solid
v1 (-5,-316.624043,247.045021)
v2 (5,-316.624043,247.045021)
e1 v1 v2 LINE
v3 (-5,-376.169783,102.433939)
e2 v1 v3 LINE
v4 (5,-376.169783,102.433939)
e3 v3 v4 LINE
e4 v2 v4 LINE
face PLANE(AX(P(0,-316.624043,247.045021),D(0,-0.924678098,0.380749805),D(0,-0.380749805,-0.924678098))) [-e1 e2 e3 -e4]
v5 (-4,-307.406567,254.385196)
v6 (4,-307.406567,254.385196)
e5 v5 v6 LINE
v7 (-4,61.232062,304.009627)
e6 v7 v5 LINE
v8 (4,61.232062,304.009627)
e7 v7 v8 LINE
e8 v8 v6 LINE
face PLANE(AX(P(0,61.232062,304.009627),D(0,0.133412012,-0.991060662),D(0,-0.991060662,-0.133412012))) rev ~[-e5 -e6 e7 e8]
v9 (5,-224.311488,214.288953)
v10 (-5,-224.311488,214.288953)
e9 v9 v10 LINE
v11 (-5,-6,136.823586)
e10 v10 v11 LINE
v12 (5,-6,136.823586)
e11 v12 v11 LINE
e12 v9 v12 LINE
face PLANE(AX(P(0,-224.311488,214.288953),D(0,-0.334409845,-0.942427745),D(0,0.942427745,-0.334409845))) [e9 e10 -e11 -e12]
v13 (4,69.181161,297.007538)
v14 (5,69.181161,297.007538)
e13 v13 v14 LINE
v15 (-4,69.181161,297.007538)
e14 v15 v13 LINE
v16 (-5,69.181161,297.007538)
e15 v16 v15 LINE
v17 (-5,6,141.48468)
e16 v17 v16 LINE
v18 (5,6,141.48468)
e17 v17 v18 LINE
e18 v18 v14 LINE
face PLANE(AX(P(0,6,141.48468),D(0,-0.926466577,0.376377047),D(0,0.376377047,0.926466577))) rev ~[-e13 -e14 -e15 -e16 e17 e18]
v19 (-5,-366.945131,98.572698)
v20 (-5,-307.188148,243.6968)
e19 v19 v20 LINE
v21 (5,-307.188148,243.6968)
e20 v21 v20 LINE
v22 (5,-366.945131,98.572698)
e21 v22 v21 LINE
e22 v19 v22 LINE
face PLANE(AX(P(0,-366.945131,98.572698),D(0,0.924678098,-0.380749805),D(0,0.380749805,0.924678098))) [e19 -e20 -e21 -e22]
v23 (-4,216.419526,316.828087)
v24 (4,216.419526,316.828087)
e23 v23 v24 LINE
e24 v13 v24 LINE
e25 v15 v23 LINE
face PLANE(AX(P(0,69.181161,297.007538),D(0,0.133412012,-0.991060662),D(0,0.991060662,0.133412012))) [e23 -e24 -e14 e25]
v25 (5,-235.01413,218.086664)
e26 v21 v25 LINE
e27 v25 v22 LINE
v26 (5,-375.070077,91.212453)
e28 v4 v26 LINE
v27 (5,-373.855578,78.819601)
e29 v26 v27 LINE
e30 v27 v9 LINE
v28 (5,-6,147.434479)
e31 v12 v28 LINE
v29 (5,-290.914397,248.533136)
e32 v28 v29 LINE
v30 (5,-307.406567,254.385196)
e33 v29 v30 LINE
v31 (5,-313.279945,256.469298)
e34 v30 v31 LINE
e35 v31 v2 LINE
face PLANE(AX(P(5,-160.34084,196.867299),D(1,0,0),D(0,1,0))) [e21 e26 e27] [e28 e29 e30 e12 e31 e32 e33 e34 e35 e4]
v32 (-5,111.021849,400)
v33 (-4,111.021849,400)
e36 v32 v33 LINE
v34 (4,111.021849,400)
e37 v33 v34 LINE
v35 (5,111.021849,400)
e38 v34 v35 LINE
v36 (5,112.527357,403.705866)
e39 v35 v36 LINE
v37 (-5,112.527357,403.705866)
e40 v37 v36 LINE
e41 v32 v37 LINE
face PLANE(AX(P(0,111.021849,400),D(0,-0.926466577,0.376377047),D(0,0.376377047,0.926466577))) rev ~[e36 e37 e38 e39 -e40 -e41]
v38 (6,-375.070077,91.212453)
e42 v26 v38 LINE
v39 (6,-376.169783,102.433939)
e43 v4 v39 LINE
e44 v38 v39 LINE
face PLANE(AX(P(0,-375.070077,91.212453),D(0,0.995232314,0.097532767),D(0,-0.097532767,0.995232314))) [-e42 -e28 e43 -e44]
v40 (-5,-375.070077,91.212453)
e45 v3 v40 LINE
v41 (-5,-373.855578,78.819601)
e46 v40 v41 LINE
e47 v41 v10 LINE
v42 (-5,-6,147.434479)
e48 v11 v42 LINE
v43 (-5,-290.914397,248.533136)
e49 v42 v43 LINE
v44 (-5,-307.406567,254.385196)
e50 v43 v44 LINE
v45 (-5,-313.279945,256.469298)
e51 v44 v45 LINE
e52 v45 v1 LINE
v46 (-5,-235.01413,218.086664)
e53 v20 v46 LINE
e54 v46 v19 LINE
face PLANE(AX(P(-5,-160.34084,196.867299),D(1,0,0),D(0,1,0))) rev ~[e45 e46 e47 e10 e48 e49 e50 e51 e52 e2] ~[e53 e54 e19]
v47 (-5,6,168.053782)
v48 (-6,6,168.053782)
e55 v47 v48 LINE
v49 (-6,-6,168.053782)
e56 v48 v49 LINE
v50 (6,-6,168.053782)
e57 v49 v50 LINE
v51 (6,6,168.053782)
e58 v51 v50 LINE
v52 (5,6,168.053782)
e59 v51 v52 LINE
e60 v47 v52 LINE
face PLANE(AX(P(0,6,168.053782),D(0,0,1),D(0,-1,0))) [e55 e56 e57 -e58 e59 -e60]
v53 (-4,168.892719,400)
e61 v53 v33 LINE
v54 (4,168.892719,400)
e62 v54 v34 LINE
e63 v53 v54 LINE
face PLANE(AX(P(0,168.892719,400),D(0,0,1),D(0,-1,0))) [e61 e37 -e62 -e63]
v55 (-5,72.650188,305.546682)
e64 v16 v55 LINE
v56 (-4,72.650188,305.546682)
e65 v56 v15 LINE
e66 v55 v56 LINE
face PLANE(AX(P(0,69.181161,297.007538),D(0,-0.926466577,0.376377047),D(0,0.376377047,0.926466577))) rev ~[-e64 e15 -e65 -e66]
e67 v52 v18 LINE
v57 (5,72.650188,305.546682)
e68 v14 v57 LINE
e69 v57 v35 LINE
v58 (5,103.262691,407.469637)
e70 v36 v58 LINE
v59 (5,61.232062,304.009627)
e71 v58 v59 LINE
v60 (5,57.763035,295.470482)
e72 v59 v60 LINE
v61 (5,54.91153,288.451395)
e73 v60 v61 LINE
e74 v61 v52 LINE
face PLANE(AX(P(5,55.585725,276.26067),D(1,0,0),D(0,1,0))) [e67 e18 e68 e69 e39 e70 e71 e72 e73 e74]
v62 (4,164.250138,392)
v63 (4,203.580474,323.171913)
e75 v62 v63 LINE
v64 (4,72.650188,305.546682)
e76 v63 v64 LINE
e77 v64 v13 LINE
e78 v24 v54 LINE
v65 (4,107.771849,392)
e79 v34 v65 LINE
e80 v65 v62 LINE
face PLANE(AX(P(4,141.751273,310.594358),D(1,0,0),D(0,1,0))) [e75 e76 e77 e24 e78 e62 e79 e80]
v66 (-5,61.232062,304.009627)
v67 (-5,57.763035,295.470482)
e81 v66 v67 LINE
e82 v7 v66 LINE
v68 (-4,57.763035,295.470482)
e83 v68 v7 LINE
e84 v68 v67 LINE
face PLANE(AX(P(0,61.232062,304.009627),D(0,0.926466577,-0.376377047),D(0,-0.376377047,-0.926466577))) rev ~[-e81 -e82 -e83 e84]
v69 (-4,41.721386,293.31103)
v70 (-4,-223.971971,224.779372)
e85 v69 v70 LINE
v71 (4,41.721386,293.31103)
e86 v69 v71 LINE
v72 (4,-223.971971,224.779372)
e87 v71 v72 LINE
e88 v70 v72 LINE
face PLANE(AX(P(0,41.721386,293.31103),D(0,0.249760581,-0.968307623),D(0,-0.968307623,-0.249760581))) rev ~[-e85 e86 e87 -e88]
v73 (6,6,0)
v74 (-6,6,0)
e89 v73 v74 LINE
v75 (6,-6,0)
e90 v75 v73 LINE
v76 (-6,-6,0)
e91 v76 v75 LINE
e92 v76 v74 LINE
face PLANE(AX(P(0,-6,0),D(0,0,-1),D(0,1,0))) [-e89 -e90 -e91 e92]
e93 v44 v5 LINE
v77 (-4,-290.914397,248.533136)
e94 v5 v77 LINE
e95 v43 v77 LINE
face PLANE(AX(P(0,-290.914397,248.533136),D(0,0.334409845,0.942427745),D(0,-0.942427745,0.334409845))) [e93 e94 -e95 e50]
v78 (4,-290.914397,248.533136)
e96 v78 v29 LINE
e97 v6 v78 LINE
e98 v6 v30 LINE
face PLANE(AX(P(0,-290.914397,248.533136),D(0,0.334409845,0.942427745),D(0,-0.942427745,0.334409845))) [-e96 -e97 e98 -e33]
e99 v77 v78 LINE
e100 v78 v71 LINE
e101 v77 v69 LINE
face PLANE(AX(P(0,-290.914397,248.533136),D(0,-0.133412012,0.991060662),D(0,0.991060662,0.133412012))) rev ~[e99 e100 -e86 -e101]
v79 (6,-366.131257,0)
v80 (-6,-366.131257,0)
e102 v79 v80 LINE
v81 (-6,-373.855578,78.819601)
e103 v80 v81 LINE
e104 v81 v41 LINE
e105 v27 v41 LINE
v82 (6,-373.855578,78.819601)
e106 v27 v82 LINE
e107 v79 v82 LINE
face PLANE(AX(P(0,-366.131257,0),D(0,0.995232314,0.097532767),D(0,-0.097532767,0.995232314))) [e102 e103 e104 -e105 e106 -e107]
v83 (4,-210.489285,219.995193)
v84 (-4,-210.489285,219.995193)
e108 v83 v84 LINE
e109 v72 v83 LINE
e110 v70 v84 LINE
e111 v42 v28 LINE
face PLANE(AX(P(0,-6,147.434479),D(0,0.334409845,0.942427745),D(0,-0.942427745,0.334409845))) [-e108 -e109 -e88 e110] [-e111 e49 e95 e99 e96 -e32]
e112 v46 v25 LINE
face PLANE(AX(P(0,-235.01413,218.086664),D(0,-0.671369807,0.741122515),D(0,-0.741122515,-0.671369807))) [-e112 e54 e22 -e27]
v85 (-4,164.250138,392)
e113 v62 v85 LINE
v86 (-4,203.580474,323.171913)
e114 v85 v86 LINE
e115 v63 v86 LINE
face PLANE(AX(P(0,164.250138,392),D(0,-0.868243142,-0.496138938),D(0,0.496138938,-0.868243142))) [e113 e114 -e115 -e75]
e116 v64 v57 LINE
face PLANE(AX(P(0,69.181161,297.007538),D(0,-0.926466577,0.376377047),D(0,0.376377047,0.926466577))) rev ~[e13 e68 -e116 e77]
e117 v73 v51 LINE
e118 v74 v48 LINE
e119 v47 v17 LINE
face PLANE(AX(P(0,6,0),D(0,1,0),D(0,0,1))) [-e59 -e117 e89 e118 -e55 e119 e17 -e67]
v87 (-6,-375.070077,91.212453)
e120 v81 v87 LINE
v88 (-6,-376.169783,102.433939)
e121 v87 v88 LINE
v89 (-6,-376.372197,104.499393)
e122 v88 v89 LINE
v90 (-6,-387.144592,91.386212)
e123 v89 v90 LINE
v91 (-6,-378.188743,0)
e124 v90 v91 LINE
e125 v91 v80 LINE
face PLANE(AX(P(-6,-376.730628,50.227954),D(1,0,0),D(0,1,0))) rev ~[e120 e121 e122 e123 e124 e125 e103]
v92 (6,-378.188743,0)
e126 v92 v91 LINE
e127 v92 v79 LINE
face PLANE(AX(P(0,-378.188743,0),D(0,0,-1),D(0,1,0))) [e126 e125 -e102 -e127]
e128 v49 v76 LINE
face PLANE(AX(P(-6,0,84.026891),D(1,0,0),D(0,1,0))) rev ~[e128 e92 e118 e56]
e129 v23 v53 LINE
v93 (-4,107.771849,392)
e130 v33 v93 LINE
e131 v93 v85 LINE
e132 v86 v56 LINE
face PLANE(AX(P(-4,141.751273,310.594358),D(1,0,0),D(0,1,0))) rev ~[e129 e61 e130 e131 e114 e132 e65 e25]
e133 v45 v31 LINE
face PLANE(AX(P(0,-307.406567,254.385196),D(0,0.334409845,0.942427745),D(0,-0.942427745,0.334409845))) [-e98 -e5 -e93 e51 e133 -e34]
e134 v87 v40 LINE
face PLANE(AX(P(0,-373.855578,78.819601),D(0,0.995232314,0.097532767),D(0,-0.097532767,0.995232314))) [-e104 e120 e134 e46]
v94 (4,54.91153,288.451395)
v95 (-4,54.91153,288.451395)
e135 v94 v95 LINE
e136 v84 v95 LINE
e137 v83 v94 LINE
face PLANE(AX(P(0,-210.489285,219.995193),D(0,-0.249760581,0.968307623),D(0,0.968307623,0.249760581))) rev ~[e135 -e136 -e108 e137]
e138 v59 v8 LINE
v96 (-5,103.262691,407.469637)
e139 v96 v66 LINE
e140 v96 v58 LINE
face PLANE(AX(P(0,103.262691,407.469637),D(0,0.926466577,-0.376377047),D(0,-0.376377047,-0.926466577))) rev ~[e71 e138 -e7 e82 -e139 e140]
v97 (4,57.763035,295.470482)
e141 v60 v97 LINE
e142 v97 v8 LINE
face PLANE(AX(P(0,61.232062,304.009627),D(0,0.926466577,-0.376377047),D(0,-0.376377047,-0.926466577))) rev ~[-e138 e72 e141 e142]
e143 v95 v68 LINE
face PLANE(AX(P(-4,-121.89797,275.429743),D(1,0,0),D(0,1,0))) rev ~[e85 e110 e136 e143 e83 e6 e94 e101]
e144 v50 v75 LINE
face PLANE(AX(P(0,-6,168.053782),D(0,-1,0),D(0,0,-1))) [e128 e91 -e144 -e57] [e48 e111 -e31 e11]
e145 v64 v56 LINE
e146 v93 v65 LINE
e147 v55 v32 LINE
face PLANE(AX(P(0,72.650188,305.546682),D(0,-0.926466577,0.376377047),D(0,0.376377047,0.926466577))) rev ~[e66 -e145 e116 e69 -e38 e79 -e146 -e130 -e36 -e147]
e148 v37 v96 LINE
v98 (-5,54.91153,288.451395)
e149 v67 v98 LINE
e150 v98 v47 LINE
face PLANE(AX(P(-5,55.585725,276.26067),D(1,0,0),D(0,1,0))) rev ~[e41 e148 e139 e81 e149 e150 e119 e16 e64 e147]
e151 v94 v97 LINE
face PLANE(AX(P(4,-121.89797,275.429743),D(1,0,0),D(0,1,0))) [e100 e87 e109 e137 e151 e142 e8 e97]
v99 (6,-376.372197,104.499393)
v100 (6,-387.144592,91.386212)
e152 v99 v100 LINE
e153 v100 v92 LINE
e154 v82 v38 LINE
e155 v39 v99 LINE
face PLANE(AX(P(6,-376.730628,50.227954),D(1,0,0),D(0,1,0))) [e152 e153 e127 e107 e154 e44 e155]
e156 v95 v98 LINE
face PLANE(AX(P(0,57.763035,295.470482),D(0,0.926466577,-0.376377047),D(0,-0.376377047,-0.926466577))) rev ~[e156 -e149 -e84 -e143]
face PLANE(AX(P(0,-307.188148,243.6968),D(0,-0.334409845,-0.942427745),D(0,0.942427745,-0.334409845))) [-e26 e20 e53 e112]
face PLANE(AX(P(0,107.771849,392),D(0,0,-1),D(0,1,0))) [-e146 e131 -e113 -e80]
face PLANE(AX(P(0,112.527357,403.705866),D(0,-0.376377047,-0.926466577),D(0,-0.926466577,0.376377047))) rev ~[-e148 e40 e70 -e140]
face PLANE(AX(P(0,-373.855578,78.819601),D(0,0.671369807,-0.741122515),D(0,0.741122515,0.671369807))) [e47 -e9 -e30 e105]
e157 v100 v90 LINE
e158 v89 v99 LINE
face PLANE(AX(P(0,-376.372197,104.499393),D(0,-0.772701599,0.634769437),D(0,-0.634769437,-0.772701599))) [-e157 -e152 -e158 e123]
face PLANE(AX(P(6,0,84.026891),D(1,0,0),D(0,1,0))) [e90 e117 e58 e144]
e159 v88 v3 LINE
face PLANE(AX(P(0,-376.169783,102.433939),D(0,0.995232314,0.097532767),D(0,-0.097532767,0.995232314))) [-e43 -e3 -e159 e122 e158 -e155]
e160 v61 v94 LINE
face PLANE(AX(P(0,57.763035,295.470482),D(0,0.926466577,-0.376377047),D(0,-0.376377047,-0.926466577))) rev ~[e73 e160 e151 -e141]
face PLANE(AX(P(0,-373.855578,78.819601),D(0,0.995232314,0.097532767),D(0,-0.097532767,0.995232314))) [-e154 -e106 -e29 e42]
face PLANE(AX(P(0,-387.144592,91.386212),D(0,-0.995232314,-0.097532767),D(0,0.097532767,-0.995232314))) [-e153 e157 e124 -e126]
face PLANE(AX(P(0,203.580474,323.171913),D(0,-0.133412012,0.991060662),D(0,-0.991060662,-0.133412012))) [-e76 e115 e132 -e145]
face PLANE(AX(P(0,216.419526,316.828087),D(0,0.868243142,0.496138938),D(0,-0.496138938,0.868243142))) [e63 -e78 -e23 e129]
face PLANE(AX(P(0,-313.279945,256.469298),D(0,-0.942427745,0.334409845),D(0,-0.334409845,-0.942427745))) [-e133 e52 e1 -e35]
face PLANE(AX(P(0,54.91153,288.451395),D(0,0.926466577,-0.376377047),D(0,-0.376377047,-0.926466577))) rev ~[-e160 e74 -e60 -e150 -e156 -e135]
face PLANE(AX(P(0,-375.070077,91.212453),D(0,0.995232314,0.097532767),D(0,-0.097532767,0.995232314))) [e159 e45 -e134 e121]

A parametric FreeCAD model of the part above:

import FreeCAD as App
import Part
import Sketcher
from FreeCAD import Vector
Q = App.Units.Quantity


def add_polygon(sketch, points):
    """Adds a closed chain of lines whose ends are joined by coincident constraints."""
    first, n = sketch.GeometryCount, len(points)
    for a, b in zip(points, points[1:] + points[:1]):
        sketch.addGeometry(Part.LineSegment(App.Vector(*a, 0), App.Vector(*b, 0)), False)
    for i in range(n):
        sketch.addConstraint(Sketcher.Constraint("Coincident", first + i, 2, first + (i + 1) % n, 1))

doc = App.newDocument("Part")
body = doc.addObject("PartDesign::Body", "Body")

sketch1 = body.newObject("Sketcher::SketchObject", "Sketch")
sketch1.AttachmentSupport = (doc.getObject("YZ_Plane"), [""])
sketch1.MapMode = "FlatFace"
add_polygon(sketch1, [(6, 168), (-6, 168), (-6, 0), (6, 0)])
sketch1.addConstraint(Sketcher.Constraint("Horizontal", 0))
sketch1.addConstraint(Sketcher.Constraint("Vertical", 1))
sketch1.addConstraint(Sketcher.Constraint("Horizontal", 2))
sketch1.addConstraint(Sketcher.Constraint("Vertical", 3))
sketch1.addConstraint(Sketcher.Constraint("Symmetric", 1, 2, 2, 2, -1, 1))
sketch1.addConstraint(Sketcher.Constraint("DistanceX", 0, 2, 0, 1, Q("12 mm")))
sketch1.addConstraint(Sketcher.Constraint("DistanceY", 1, 2, 1, 1, Q("168.053782 mm")))
pad1 = body.newObject("PartDesign::Pad", "Pad")
pad1.Profile = sketch1
pad1.Length = 12
pad1.Midplane = True
body2 = doc.addObject("PartDesign::Body", "Body001")

sketch2 = body2.newObject("Sketcher::SketchObject", "Sketch001")
sketch2.AttachmentSupport = (doc.getObject("YZ_Plane001"), [""])
sketch2.MapMode = "FlatFace"
add_polygon(sketch2, [(-366.1, 0), (-373.9, 78.8), (-375.1, 91.2), (-376.2, 102.4), (-376.4, 104.5), (-387.1, 91.4), (-378.2, 0)])
sketch2.addConstraint(Sketcher.Constraint("Horizontal", 6))
sketch2.addConstraint(Sketcher.Constraint("PointOnObject", 5, 2, -1))
sketch2.addConstraint(Sketcher.Constraint("Parallel", 0, 1))
sketch2.addConstraint(Sketcher.Constraint("Parallel", 1, 2))
sketch2.addConstraint(Sketcher.Constraint("Parallel", 2, 3))
sketch2.addConstraint(Sketcher.Constraint("Parallel", 3, 5))
sketch2.addConstraint(Sketcher.Constraint("Distance", 5, Q("91.824 mm")))
sketch2.addConstraint(Sketcher.Constraint("DistanceY", -1, 1, 0, 2, Q("78.819601 mm")))
sketch2.addConstraint(Sketcher.Constraint("DistanceX", 1, 2, 0, 2, Q("1.2145 mm")))
sketch2.addConstraint(Sketcher.Constraint("Distance", 0, Q("79.197188 mm")))
sketch2.addConstraint(Sketcher.Constraint("Distance", 3, Q("2.075349 mm")))
sketch2.addConstraint(Sketcher.Constraint("DistanceX", 6, 1, 6, 2, Q("12.057486 mm")))
sketch2.addConstraint(Sketcher.Constraint("DistanceY", -1, 1, 2, 2, Q("102.433939 mm")))
sketch2.addConstraint(Sketcher.Constraint("DistanceX", 4, 2, -1, 1, Q("387.144592 mm")))
pad2 = body2.newObject("PartDesign::Pad", "Pad001")
pad2.Profile = sketch2
pad2.Length = 12
pad2.Midplane = True
body.AllowCompound = True
doc.recompute()

boolean = body.newObject("PartDesign::Boolean", "Boolean")
boolean.Type = "Fuse"
boolean.addObjects([body2])

sketch3 = body.newObject("Sketcher::SketchObject", "Sketch002")
sketch3.AttachmentSupport = (doc.getObject("YZ_Plane"), [""])
sketch3.MapMode = "FlatFace"
add_polygon(sketch3, [(54.91153, 288.451395), (6, 168.053782), (6, 141.48468), (69.181161, 297.007538), (72.650188, 305.546682), (111.021849, 400), (112.527357, 403.705866), (103.262691, 407.469637), (61.232062, 304.009627), (57.763035, 295.470482)])
add_polygon(sketch3, [(-6, 136.823586), (-6, 147.434479), (-290.914397, 248.533136), (-307.406567, 254.385196), (-313.279945, 256.469298), (-316.624043, 247.045021), (-376.169783, 102.433939), (-375.070077, 91.212453), (-373.855578, 78.819601), (-224.311488, 214.288953)])
add_polygon(sketch3, [(-307.188148, 243.6968), (-235.01413, 218.086664), (-366.945131, 98.572698)])
sketch3.addConstraint(Sketcher.Constraint("Vertical", 1))
sketch3.addConstraint(Sketcher.Constraint("Vertical", 10))
sketch3.addConstraint(Sketcher.Constraint("Distance", 5, Q("4 mm")))
sketch3.addConstraint(Sketcher.Constraint("Distance", 6, Q("10 mm")))
sketch3.addConstraint(Sketcher.Constraint("Distance", 14, Q("10 mm")))
sketch3.addConstraint(Sketcher.Constraint("DistanceX", -1, 1, 0, 2, Q("6 mm")))
sketch3.addConstraint(Sketcher.Constraint("DistanceY", -1, 1, 4, 2, Q("400 mm")))
sketch3.addConstraint(Sketcher.Constraint("DistanceX", 10, 2, -1, 1, Q("6 mm")))
sketch3.addConstraint(Sketcher.Constraint("DistanceY", 1, 2, 1, 1, Q("26.569102 mm")))
sketch3.addConstraint(Sketcher.Constraint("DistanceY", -1, 1, 17, 2, Q("78.819601 mm")))
sketch3.addConstraint(Sketcher.Constraint("DistanceY", -1, 1, 21, 2, Q("98.572698 mm")))
sketch3.addConstraint(Sketcher.Constraint("DistanceY", -1, 1, 22, 2, Q("243.6968 mm")))
sketch3.addConstraint(Sketcher.Constraint("DistanceY", 0, 2, 3, 2, Q("137.492901 mm")))
sketch3.addConstraint(Sketcher.Constraint("DistanceY", 2, 2, 6, 2, Q("110.462099 mm")))
sketch3.addConstraint(Sketcher.Constraint("DistanceX", 7, 2, 2, 2, Q("7.949099 mm")))
sketch3.addConstraint(Sketcher.Constraint("DistanceY", 8, 2, 3, 2, Q("10.0762 mm")))
sketch3.addConstraint(Sketcher.Constraint("DistanceY", 1, 2, 10, 2, Q("5.949799 mm")))
sketch3.addConstraint(Sketcher.Constraint("DistanceY", 12, 2, 9, 2, Q("34.066199 mm")))
sketch3.addConstraint(Sketcher.Constraint("DistanceX", 14, 2, 13, 2, Q("3.344098 mm")))
sketch3.addConstraint(Sketcher.Constraint("DistanceX", 16, 2, 17, 2, Q("1.2145 mm")))
sketch3.addConstraint(Sketcher.Constraint("DistanceY", 21, 2, 13, 2, Q("157.8966 mm")))
sketch3.addConstraint(Sketcher.Constraint("Distance", 0, Q("129.953542 mm")))
sketch3.addConstraint(Sketcher.Constraint("Distance", 2, Q("167.866669 mm")))
sketch3.addConstraint(Sketcher.Constraint("Distance", 9, Q("7.576191 mm")))
sketch3.addConstraint(Sketcher.Constraint("Distance", 11, Q("302.319619 mm")))
sketch3.addConstraint(Sketcher.Constraint("Distance", 13, Q("6.232179 mm")))
sketch3.addConstraint(Sketcher.Constraint("Distance", 15, Q("156.390729 mm")))
sketch3.addConstraint(Sketcher.Constraint("Distance", 17, Q("12.45222 mm")))
sketch3.addConstraint(Sketcher.Constraint("Distance", 20, Q("76.583079 mm")))
sketch3.addConstraint(Sketcher.Constraint("DistanceY", 10, 1, 10, 2, Q("10.610893 mm")))
sketch3.addConstraint(Sketcher.Constraint("DistanceY", -1, 1, 0, 2, Q("168.053782 mm")))
sketch3.addConstraint(Sketcher.Constraint("DistanceX", -1, 1, 2, 2, Q("69.181161 mm")))
sketch3.addConstraint(Sketcher.Constraint("DistanceX", -1, 1, 3, 2, Q("72.650188 mm")))
sketch3.addConstraint(Sketcher.Constraint("DistanceX", -1, 1, 4, 2, Q("111.021849 mm")))
sketch3.addConstraint(Sketcher.Constraint("DistanceX", -1, 1, 6, 2, Q("103.262691 mm")))
sketch3.addConstraint(Sketcher.Constraint("DistanceX", -1, 1, 9, 2, Q("54.91153 mm")))
sketch3.addConstraint(Sketcher.Constraint("DistanceY", -1, 1, 15, 2, Q("102.433939 mm")))
sketch3.addConstraint(Sketcher.Constraint("DistanceX", 18, 2, -1, 1, Q("224.311488 mm")))
sketch3.addConstraint(Sketcher.Constraint("DistanceX", 20, 2, -1, 1, Q("235.01413 mm")))
sketch3.addConstraint(Sketcher.Constraint("DistanceX", 21, 2, -1, 1, Q("366.945131 mm")))
sketch3.addConstraint(Sketcher.Constraint("DistanceX", 22, 2, -1, 1, Q("307.188148 mm")))
sketch3.addConstraint(Sketcher.Constraint("DistanceY", 2, 2, 7, 2, Q("7.002089 mm")))
sketch3.addConstraint(Sketcher.Constraint("DistanceY", 11, 2, 9, 2, Q("39.918259 mm")))
sketch3.addConstraint(Sketcher.Constraint("DistanceX", 12, 2, 11, 2, Q("16.492169 mm")))
sketch3.addConstraint(Sketcher.Constraint("DistanceX", 16, 2, 12, 2, Q("67.663511 mm")))
sketch3.addConstraint(Sketcher.Constraint("DistanceY", 18, 2, 20, 2, Q("3.797712 mm")))
pad3 = body.newObject("PartDesign::Pad", "Pad002")
pad3.Profile = sketch3
pad3.Length = 10
pad3.Midplane = True

sketch4 = body.newObject("Sketcher::SketchObject", "Sketch003")
sketch4.AttachmentSupport = (doc.getObject("YZ_Plane"), [""])
sketch4.MapMode = "FlatFace"
add_polygon(sketch4, [(58, 295), (61, 304), (-307, 254), (-291, 249), (42, 293), (-224, 225), (-210, 220), (55, 288)])
add_polygon(sketch4, [(73, 306), (69, 297), (216, 317), (169, 400), (111, 400), (108, 392), (164, 392), (204, 323)])
sketch4.addConstraint(Sketcher.Constraint("Horizontal", 11))
sketch4.addConstraint(Sketcher.Constraint("Horizontal", 13))
sketch4.addConstraint(Sketcher.Constraint("Parallel", 1, 3))
sketch4.addConstraint(Sketcher.Constraint("Parallel", 2, 5))
sketch4.addConstraint(Sketcher.Constraint("Parallel", 4, 6))
sketch4.addConstraint(Sketcher.Constraint("Parallel", 0, 7))
sketch4.addConstraint(Sketcher.Constraint("Parallel", 7, 8))
sketch4.addConstraint(Sketcher.Constraint("Parallel", 3, 9))
sketch4.addConstraint(Sketcher.Constraint("Parallel", 8, 12))
sketch4.addConstraint(Sketcher.Constraint("Parallel", 10, 14))
sketch4.addConstraint(Sketcher.Constraint("Parallel", 9, 15))
sketch4.addConstraint(Sketcher.Constraint("Equal", 0, 8))
sketch4.addConstraint(Sketcher.Constraint("DistanceY", -1, 1, 10, 2, Q("400 mm")))
sketch4.addConstraint(Sketcher.Constraint("DistanceY", -1, 1, 12, 2, Q("392 mm")))
sketch4.addConstraint(Sketcher.Constraint("DistanceX", 12, 2, 11, 2, Q("3.25 mm")))
sketch4.addConstraint(Sketcher.Constraint("DistanceX", 11, 2, 11, 1, Q("57.87087 mm")))
sketch4.addConstraint(Sketcher.Constraint("DistanceX", 13, 1, 13, 2, Q("56.47829 mm")))
sketch4.addConstraint(Sketcher.Constraint("DistanceY", 5, 2, 6, 2, Q("68.456202 mm")))
sketch4.addConstraint(Sketcher.Constraint("DistanceX", 4, 2, 6, 2, Q("278.883501 mm")))
sketch4.addConstraint(Sketcher.Constraint("DistanceX", 0, 2, 8, 2, Q("7.949099 mm")))
sketch4.addConstraint(Sketcher.Constraint("DistanceY", 7, 2, 15, 2, Q("10.0762 mm")))
sketch4.addConstraint(Sketcher.Constraint("Distance", 1, Q("371.963738 mm")))
sketch4.addConstraint(Sketcher.Constraint("Distance", 3, Q("335.636148 mm")))
sketch4.addConstraint(Sketcher.Constraint("Distance", 4, Q("274.389409 mm")))
sketch4.addConstraint(Sketcher.Constraint("Distance", 7, Q("7.576191 mm")))
sketch4.addConstraint(Sketcher.Constraint("Distance", 9, Q("148.566451 mm")))
sketch4.addConstraint(Sketcher.Constraint("DistanceY", -1, 1, 3, 2, Q("293.31103 mm")))
sketch4.addConstraint(Sketcher.Constraint("DistanceX", 4, 2, -1, 1, Q("223.971971 mm")))
sketch4.addConstraint(Sketcher.Constraint("DistanceY", -1, 1, 4, 2, Q("224.779372 mm")))
sketch4.addConstraint(Sketcher.Constraint("DistanceX", -1, 1, 8, 2, Q("69.181161 mm")))
sketch4.addConstraint(Sketcher.Constraint("DistanceX", -1, 1, 10, 2, Q("168.892719 mm")))
sketch4.addConstraint(Sketcher.Constraint("DistanceX", 1, 2, 0, 2, Q("368.638629 mm")))
pad4 = body.newObject("PartDesign::Pad", "Pad003")
pad4.Profile = sketch4
pad4.Length = 8
pad4.Midplane = True

doc.recompute()
